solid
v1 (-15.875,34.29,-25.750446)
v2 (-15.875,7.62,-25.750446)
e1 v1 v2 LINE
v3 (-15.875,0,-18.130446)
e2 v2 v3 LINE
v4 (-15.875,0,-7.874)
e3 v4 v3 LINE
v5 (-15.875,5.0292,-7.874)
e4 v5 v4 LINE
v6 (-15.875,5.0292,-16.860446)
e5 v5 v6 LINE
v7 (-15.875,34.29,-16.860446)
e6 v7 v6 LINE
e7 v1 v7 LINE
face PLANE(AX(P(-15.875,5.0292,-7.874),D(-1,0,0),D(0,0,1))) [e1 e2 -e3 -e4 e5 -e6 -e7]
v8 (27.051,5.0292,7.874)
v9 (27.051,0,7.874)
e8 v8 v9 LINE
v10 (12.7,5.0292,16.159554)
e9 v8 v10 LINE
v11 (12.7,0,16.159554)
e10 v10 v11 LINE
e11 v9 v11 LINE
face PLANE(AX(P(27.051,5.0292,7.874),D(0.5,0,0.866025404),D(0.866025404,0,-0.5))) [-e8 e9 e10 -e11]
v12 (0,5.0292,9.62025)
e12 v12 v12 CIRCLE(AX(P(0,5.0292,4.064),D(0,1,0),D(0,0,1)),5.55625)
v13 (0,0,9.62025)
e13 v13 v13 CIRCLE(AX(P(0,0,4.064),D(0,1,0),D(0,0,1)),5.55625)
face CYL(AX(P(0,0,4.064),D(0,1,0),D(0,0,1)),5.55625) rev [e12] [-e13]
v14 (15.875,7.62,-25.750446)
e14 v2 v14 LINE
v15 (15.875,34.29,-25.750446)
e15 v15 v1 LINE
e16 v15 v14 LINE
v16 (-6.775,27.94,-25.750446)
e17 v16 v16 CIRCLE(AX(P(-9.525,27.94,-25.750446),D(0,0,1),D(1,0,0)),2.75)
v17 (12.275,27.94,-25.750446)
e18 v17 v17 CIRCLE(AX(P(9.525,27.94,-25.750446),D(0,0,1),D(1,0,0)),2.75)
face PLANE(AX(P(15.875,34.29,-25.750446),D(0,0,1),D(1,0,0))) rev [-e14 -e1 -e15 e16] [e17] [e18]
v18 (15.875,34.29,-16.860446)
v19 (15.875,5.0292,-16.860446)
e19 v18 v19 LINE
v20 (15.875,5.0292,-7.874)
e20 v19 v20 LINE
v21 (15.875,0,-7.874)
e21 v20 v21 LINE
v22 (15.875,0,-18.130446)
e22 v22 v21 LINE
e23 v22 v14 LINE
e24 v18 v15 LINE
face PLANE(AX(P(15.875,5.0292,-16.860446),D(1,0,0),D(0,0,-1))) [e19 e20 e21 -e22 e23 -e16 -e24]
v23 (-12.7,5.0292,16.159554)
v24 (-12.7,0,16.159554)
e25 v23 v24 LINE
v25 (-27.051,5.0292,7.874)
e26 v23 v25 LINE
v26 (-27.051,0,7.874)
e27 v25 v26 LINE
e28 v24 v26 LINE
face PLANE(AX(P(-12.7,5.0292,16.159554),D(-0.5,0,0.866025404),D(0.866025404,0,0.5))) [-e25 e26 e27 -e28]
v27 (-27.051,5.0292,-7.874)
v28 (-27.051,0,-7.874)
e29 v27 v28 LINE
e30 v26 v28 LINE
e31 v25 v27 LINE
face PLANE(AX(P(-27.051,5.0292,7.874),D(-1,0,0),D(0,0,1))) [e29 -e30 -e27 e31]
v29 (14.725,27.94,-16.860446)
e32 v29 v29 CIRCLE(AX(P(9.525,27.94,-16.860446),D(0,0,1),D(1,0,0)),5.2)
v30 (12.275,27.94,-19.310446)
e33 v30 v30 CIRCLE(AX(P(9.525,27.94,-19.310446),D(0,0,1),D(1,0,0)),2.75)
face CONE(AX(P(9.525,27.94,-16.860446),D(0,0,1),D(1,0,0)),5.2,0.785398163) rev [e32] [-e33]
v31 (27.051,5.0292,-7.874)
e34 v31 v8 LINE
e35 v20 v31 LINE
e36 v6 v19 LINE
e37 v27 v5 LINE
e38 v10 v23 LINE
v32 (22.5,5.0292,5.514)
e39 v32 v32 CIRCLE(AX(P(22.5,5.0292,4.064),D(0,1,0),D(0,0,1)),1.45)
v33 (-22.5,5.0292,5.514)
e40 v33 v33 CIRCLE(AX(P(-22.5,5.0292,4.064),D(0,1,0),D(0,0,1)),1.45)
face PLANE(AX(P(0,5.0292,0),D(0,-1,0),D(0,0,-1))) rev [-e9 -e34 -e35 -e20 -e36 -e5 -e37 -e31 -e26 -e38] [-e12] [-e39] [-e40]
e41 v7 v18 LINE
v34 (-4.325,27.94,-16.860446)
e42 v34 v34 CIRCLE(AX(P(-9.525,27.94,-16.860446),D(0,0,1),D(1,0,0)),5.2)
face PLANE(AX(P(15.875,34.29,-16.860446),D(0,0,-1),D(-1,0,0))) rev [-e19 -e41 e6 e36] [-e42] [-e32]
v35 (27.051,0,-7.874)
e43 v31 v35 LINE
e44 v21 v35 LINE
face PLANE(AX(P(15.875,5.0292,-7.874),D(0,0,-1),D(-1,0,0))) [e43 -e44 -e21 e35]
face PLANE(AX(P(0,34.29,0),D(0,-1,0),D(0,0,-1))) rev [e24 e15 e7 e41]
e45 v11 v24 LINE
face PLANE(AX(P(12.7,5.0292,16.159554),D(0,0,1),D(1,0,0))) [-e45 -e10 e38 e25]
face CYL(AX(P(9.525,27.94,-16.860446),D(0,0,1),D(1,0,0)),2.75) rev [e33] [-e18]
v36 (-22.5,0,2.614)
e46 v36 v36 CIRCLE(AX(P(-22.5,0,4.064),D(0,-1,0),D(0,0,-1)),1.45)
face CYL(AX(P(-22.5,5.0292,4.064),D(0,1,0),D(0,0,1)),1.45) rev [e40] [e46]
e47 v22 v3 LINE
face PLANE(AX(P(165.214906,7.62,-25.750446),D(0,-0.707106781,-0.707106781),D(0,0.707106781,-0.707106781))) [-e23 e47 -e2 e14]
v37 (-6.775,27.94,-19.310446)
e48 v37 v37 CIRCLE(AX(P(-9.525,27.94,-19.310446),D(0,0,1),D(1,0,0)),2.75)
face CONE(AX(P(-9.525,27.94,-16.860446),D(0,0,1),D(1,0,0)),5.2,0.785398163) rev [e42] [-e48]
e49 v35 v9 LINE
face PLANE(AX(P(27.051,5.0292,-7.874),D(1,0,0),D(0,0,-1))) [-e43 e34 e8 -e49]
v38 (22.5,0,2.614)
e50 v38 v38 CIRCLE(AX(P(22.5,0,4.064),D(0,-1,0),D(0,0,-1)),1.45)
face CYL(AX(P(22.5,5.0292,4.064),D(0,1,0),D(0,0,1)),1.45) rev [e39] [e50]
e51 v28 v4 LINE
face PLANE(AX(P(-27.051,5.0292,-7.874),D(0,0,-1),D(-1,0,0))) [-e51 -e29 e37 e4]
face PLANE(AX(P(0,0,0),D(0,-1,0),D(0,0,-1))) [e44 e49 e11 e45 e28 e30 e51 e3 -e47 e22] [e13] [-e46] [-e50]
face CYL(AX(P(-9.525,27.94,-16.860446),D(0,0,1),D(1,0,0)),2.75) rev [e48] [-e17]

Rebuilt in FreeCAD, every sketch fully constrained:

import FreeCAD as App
import Part
import Sketcher
from FreeCAD import Vector
Q = App.Units.Quantity


def add_polygon(sketch, points):
    """Adds a closed chain of lines whose ends are joined by coincident constraints."""
    first, n = sketch.GeometryCount, len(points)
    for a, b in zip(points, points[1:] + points[:1]):
        sketch.addGeometry(Part.LineSegment(App.Vector(*a, 0), App.Vector(*b, 0)), False)
    for i in range(n):
        sketch.addConstraint(Sketcher.Constraint("Coincident", first + i, 2, first + (i + 1) % n, 1))

doc = App.newDocument("Part")
body = doc.addObject("PartDesign::Body", "Body")

# Sketch on XZ plane
sketch1 = doc.addObject("Sketcher::SketchObject", "Sketch")
body.addObject(sketch1)
sketch1.AttachmentSupport = (doc.XZ_Plane, [""])
sketch1.MapMode = "FlatFace"
add_polygon(sketch1, [(-15.875, -7.874), (-27.051, -7.874), (-27.051, 7.874), (-12.7, 16.159554), (12.7, 16.159554), (27.051, 7.874), (27.051, -7.874), (15.875, -7.874), (15.875, -16.860446), (-15.875, -16.860446)])  # lines 0-9
sketch1.addConstraint(Sketcher.Constraint("Horizontal", 0))
sketch1.addConstraint(Sketcher.Constraint("Vertical", 1))
sketch1.addConstraint(Sketcher.Constraint("Horizontal", 3))
sketch1.addConstraint(Sketcher.Constraint("Vertical", 5))
sketch1.addConstraint(Sketcher.Constraint("Horizontal", 6))
sketch1.addConstraint(Sketcher.Constraint("Vertical", 7))
sketch1.addConstraint(Sketcher.Constraint("Horizontal", 8))
sketch1.addConstraint(Sketcher.Constraint("Vertical", 9))
sketch1.addConstraint(Sketcher.Constraint("Symmetric", 0, 2, 4, 2, -1, 1))
sketch1.addConstraint(Sketcher.Constraint("Symmetric", 6, 2, 9, 2, -2))
sketch1.addConstraint(Sketcher.Constraint("Horizontal", 1, 2, 4, 2))
sketch1.addConstraint(Sketcher.Constraint("Equal", 2, 4))
sketch1.addConstraint(Sketcher.Constraint("DistanceX", 3, 1, 3, 2, Q("1 in")))
sketch1.addConstraint(Sketcher.Constraint("Angle", 2, Q("30 deg")))
sketch1.addConstraint(Sketcher.Constraint("DistanceX", 0, 2, 0, 1, Q("0.44 in")))
sketch1.addConstraint(Sketcher.Constraint("DistanceX", 8, 2, 8, 1, Q("1.25 in")))
sketch1.addConstraint(Sketcher.Constraint("DistanceY", 1, 1, 1, 2, Q("0.62 in")))
sketch1.addConstraint(Sketcher.Constraint("DistanceY", 7, 2, 3, 2, Q("1.3 in")))
pad1 = doc.addObject("PartDesign::Pad", "Pad")
body.addObject(pad1)
pad1.Profile = sketch1
pad1.Length = Q("0.198 in")
pad1.Reversed = True

# Sketch on XZ plane
sketch2 = doc.addObject("Sketcher::SketchObject", "Sketch001")
body.addObject(sketch2)
sketch2.AttachmentSupport = (doc.XZ_Plane, [""])
sketch2.MapMode = "FlatFace"
add_polygon(sketch2, [(-15.875, -25.750446), (-15.875, -16.860446), (15.875, -16.860446), (15.875, -25.750446)])  # lines 0-3
sketch2.addConstraint(Sketcher.Constraint("Vertical", 0))
sketch2.addConstraint(Sketcher.Constraint("Horizontal", 1))
sketch2.addConstraint(Sketcher.Constraint("Vertical", 2))
sketch2.addConstraint(Sketcher.Constraint("Horizontal", 3))
sketch2.addConstraint(Sketcher.Constraint("DistanceX", 1, 1, 1, 2, Q("1.25 in")))
sketch2.addConstraint(Sketcher.Constraint("DistanceY", 0, 1, 0, 2, Q("0.35 in")))
sketch2.addConstraint(Sketcher.Constraint("DistanceX", 0, 2, -1, 1, Q("0.625 in")))
sketch2.addConstraint(Sketcher.Constraint("DistanceY", 0, 2, -1, 1, Q("16.860446 mm")))
pad2 = doc.addObject("PartDesign::Pad", "Pad001")
body.addObject(pad2)
pad2.Profile = sketch2
pad2.Length = Q("1.35 in")
pad2.Reversed = True

# Sketch on YZ plane
sketch3 = doc.addObject("Sketcher::SketchObject", "Sketch002")
body.addObject(sketch3)
sketch3.AttachmentSupport = (doc.YZ_Plane, [""])
sketch3.MapMode = "FlatFace"
sketch3.AttachmentOffset = App.Placement(Vector(0, 0, 0.625 * 25.4), App.Rotation())
add_polygon(sketch3, [(84.943997, -103.074443), (0, -18.130446), (-77.323997, 59.19355), (-231.97199, -95.454443), (-69.703997, -257.722436)])  # lines 0-4
sketch3.addConstraint(Sketcher.Constraint("PointOnObject", 0, 2, -2))
sketch3.addConstraint(Sketcher.Constraint("Parallel", 0, 1))
sketch3.addConstraint(Sketcher.Constraint("Perpendicular", 1, 2))
sketch3.addConstraint(Sketcher.Constraint("Perpendicular", 2, 3))
sketch3.addConstraint(Sketcher.Constraint("Perpendicular", 3, 4))
sketch3.addConstraint(Sketcher.Constraint("Angle", 0, Q("135 deg")))
sketch3.addConstraint(Sketcher.Constraint("DistanceX", 1, 2, 3, 2, Q("0.3 in")))
sketch3.addConstraint(Sketcher.Constraint("Distance", 0, Q("120.128952 mm")))
sketch3.addConstraint(Sketcher.Constraint("Distance", 2, Q("218.705289 mm")))
sketch3.addConstraint(Sketcher.Constraint("DistanceY", -1, 1, 1, 2, Q("59.19355 mm")))
pocket1 = doc.addObject("PartDesign::Pocket", "Pocket")
body.addObject(pocket1)
pocket1.Profile = sketch3
pocket1.Type = "ThroughAll"
pocket1.Midplane = True

# Sketch on XY plane
sketch4 = doc.addObject("Sketcher::SketchObject", "Sketch003")
body.addObject(sketch4)
sketch4.AttachmentSupport = (doc.XY_Plane, [""])
sketch4.MapMode = "FlatFace"
sketch4.AttachmentOffset = App.Placement(Vector(0, 0, -16.860446), App.Rotation())
sketch4.addGeometry(Part.Circle(Vector(-9.525, 27.94, 0), Vector(0, 0, 1), 2.75), False)
sketch4.addGeometry(Part.Circle(Vector(9.525, 27.94, 0), Vector(0, 0, 1), 2.75), False)
sketch4.addConstraint(Sketcher.Constraint("Equal", 0, 1))
sketch4.addConstraint(Sketcher.Constraint("Symmetric", 0, 3, 1, 3, -2))
sketch4.addConstraint(Sketcher.Constraint("DistanceY", -1, 1, 0, 3, Q("1.1 in")))
sketch4.addConstraint(Sketcher.Constraint("Diameter", 0, Q("5.5 mm")))
sketch4.addConstraint(Sketcher.Constraint("DistanceX", 0, 3, 1, 3, Q("0.75 in")))
doc.recompute()
hole = doc.addObject("PartDesign::Hole", "Hole")
body.addObject(hole)
hole.Profile = sketch4
hole.ThreadType = "None"
hole.Diameter = 5.5
hole.DepthType = "ThroughAll"
hole.HoleCutType = "Countersink"
hole.HoleCutDiameter = 10.4
hole.HoleCutCountersinkAngle = 90

# Sketch on XZ plane
sketch5 = doc.addObject("Sketcher::SketchObject", "Sketch004")
body.addObject(sketch5)
sketch5.AttachmentSupport = (doc.XZ_Plane, [""])
sketch5.MapMode = "FlatFace"
sketch5.AttachmentOffset = App.Placement(Vector(0, 0, -0.198 * 25.4), App.Rotation())
sketch5.addGeometry(Part.Circle(Vector(0, 4.064, 0), Vector(0, 0, 1), 5.55625), False)
sketch5.addConstraint(Sketcher.Constraint("PointOnObject", 0, 3, -2))
sketch5.addConstraint(Sketcher.Constraint("Diameter", 0, Q("0.4375 in")))
sketch5.addConstraint(Sketcher.Constraint("DistanceY", -1, 1, 0, 3, Q("0.16 in")))
pocket2 = doc.addObject("PartDesign::Pocket", "Pocket001")
body.addObject(pocket2)
pocket2.Profile = sketch5
pocket2.Type = "ThroughAll"
pocket2.Reversed = True

# Sketch on XZ plane
sketch6 = doc.addObject("Sketcher::SketchObject", "Sketch005")
body.addObject(sketch6)
sketch6.AttachmentSupport = (doc.XZ_Plane, [""])
sketch6.MapMode = "FlatFace"
sketch6.AttachmentOffset = App.Placement(Vector(0, 0, -0.198 * 25.4), App.Rotation())
sketch6.addGeometry(Part.Circle(Vector(-22.5, 4.064, 0), Vector(0, 0, 1), 1.45), False)
sketch6.addGeometry(Part.Circle(Vector(22.5, 4.064, 0), Vector(0, 0, 1), 1.45), False)
sketch6.addConstraint(Sketcher.Constraint("Equal", 0, 1))
sketch6.addConstraint(Sketcher.Constraint("Symmetric", 0, 3, 1, 3, -2))
sketch6.addConstraint(Sketcher.Constraint("Diameter", 0, Q("2.9 mm")))
sketch6.addConstraint(Sketcher.Constraint("DistanceY", -1, 1, 0, 3, Q("0.16 in")))
sketch6.addConstraint(Sketcher.Constraint("DistanceX", 0, 3, -1, 1, Q("22.5 mm")))
doc.recompute()
hole2 = doc.addObject("PartDesign::Hole", "Hole001")
body.addObject(hole2)
hole2.Profile = sketch6
hole2.ThreadType = "None"
hole2.Diameter = 2.9
hole2.DepthType = "ThroughAll"
hole2.Reversed = True

doc.recompute()
